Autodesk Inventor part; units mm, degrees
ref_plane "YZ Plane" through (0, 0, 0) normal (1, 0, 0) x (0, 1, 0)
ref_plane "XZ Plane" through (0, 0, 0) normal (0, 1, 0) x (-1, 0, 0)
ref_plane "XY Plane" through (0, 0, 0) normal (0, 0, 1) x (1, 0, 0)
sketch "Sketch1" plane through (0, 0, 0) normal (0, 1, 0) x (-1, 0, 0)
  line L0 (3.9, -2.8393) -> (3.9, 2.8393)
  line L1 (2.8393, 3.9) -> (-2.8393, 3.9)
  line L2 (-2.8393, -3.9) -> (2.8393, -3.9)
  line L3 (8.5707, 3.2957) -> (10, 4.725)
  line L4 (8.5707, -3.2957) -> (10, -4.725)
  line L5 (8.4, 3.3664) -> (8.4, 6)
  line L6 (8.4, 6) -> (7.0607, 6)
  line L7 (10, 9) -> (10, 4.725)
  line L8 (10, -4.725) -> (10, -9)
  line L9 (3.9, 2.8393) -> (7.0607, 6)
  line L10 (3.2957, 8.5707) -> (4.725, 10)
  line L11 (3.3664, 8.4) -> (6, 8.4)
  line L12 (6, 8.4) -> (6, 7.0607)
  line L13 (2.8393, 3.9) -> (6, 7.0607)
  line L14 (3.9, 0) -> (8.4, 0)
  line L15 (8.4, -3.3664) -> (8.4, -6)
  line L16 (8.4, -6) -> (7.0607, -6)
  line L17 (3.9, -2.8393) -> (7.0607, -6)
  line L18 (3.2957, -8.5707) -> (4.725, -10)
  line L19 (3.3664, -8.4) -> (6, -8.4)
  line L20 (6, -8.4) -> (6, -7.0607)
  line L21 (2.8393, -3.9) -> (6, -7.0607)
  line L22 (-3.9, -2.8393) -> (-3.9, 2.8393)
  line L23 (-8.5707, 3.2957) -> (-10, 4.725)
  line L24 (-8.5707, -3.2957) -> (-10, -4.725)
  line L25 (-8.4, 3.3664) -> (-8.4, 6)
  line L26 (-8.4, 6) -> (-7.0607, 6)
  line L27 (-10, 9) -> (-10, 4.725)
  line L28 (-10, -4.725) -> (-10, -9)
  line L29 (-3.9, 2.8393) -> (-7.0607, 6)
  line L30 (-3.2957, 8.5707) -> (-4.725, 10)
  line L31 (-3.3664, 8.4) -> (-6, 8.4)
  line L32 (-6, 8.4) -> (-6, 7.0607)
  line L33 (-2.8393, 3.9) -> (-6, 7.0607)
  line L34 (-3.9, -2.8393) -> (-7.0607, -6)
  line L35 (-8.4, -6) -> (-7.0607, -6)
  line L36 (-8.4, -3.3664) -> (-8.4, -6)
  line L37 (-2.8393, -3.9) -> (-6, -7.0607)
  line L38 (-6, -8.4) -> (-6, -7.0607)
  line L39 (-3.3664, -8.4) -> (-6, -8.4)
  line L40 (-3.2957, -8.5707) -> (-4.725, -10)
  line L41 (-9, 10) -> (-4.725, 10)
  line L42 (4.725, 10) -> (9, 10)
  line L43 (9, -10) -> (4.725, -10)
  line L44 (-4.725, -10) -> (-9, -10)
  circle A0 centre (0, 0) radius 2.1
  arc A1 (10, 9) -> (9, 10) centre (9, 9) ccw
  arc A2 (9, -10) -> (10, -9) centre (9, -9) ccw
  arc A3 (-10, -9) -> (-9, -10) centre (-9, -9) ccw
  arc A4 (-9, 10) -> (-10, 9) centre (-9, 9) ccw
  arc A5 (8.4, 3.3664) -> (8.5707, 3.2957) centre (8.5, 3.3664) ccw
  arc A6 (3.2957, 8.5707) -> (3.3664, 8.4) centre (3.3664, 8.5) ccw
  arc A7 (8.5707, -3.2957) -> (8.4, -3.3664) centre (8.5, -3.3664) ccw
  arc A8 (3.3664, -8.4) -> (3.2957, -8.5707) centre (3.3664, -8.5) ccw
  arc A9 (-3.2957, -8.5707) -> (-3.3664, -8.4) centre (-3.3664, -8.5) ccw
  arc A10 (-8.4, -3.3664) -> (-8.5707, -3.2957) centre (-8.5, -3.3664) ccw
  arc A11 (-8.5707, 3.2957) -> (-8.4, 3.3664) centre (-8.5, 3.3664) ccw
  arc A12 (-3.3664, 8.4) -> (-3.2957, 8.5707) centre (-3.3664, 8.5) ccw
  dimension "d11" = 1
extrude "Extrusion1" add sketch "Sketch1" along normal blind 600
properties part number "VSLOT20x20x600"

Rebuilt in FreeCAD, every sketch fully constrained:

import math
import FreeCAD as App
import Part
import Sketcher

doc = App.newDocument("Part")
body = doc.addObject("PartDesign::Body", "Body")

sketch1 = body.newObject("Sketcher::SketchObject", "Sketch")
sketch1.AttachmentSupport = (doc.getObject("XZ_Plane"), [""])
sketch1.MapMode = "FlatFace"
sketch1.addGeometry(Part.LineSegment(App.Vector(-7.06, -6, 0), App.Vector(-3.9, -2.84, 0)), False)
sketch1.addGeometry(Part.LineSegment(App.Vector(-3.9, -2.84, 0), App.Vector(-3.9, 2.84, 0)), False)
sketch1.addGeometry(Part.LineSegment(App.Vector(-3.9, 2.84, 0), App.Vector(-7.06, 6, 0)), False)
sketch1.addGeometry(Part.LineSegment(App.Vector(-7.06, 6, 0), App.Vector(-8.4, 6, 0)), False)
sketch1.addGeometry(Part.LineSegment(App.Vector(-8.4, 6, 0), App.Vector(-8.4, 3.37, 0)), False)
sketch1.addGeometry(Part.ArcOfCircle(Part.Circle(App.Vector(-8.5, 3.37, 0), App.Vector(0, 0, 1), 0.1), math.radians(-135), math.radians(0)), False)
sketch1.addGeometry(Part.LineSegment(App.Vector(-8.57, 3.3, 0), App.Vector(-10, 4.72, 0)), False)
sketch1.addGeometry(Part.LineSegment(App.Vector(-10, 4.72, 0), App.Vector(-10, 9, 0)), False)
sketch1.addGeometry(Part.ArcOfCircle(Part.Circle(App.Vector(-9, 9, 0), App.Vector(0, 0, 1), 1), math.radians(90), math.radians(180)), False)
sketch1.addGeometry(Part.LineSegment(App.Vector(-9, 10, 0), App.Vector(-4.72, 10, 0)), False)
sketch1.addGeometry(Part.LineSegment(App.Vector(-4.72, 10, 0), App.Vector(-3.3, 8.57, 0)), False)
sketch1.addGeometry(Part.ArcOfCircle(Part.Circle(App.Vector(-3.37, 8.5, 0), App.Vector(0, 0, 1), 0.1), math.radians(-90), math.radians(45)), False)
sketch1.addGeometry(Part.LineSegment(App.Vector(-3.37, 8.4, 0), App.Vector(-6, 8.4, 0)), False)
sketch1.addGeometry(Part.LineSegment(App.Vector(-6, 8.4, 0), App.Vector(-6, 7.06, 0)), False)
sketch1.addGeometry(Part.LineSegment(App.Vector(-6, 7.06, 0), App.Vector(-2.84, 3.9, 0)), False)
sketch1.addGeometry(Part.LineSegment(App.Vector(-2.84, 3.9, 0), App.Vector(2.84, 3.9, 0)), False)
sketch1.addGeometry(Part.LineSegment(App.Vector(2.84, 3.9, 0), App.Vector(6, 7.06, 0)), False)
sketch1.addGeometry(Part.LineSegment(App.Vector(6, 7.06, 0), App.Vector(6, 8.4, 0)), False)
sketch1.addGeometry(Part.LineSegment(App.Vector(6, 8.4, 0), App.Vector(3.37, 8.4, 0)), False)
sketch1.addGeometry(Part.ArcOfCircle(Part.Circle(App.Vector(3.37, 8.5, 0), App.Vector(0, 0, 1), 0.1), math.radians(135), math.radians(270)), False)
sketch1.addGeometry(Part.LineSegment(App.Vector(3.3, 8.57, 0), App.Vector(4.72, 10, 0)), False)
sketch1.addGeometry(Part.LineSegment(App.Vector(4.72, 10, 0), App.Vector(9, 10, 0)), False)
sketch1.addGeometry(Part.ArcOfCircle(Part.Circle(App.Vector(9, 9, 0), App.Vector(0, 0, 1), 1), math.radians(0), math.radians(90)), False)
sketch1.addGeometry(Part.LineSegment(App.Vector(10, 9, 0), App.Vector(10, 4.72, 0)), False)
sketch1.addGeometry(Part.LineSegment(App.Vector(10, 4.72, 0), App.Vector(8.57, 3.3, 0)), False)
sketch1.addGeometry(Part.ArcOfCircle(Part.Circle(App.Vector(8.5, 3.37, 0), App.Vector(0, 0, 1), 0.1), math.radians(180), math.radians(315)), False)
sketch1.addGeometry(Part.LineSegment(App.Vector(8.4, 3.37, 0), App.Vector(8.4, 6, 0)), False)
sketch1.addGeometry(Part.LineSegment(App.Vector(8.4, 6, 0), App.Vector(7.06, 6, 0)), False)
sketch1.addGeometry(Part.LineSegment(App.Vector(7.06, 6, 0), App.Vector(3.9, 2.84, 0)), False)
sketch1.addGeometry(Part.LineSegment(App.Vector(3.9, 2.84, 0), App.Vector(3.9, -2.84, 0)), False)
sketch1.addGeometry(Part.LineSegment(App.Vector(3.9, -2.84, 0), App.Vector(7.06, -6, 0)), False)
sketch1.addGeometry(Part.LineSegment(App.Vector(7.06, -6, 0), App.Vector(8.4, -6, 0)), False)
sketch1.addGeometry(Part.LineSegment(App.Vector(8.4, -6, 0), App.Vector(8.4, -3.37, 0)), False)
sketch1.addGeometry(Part.ArcOfCircle(Part.Circle(App.Vector(8.5, -3.37, 0), App.Vector(0, 0, 1), 0.1), math.radians(45), math.radians(180)), False)
sketch1.addGeometry(Part.LineSegment(App.Vector(8.57, -3.3, 0), App.Vector(10, -4.72, 0)), False)
sketch1.addGeometry(Part.LineSegment(App.Vector(10, -4.72, 0), App.Vector(10, -9, 0)), False)
sketch1.addGeometry(Part.ArcOfCircle(Part.Circle(App.Vector(9, -9, 0), App.Vector(0, 0, 1), 1), math.radians(-90), math.radians(0)), False)
sketch1.addGeometry(Part.LineSegment(App.Vector(9, -10, 0), App.Vector(4.72, -10, 0)), False)
sketch1.addGeometry(Part.LineSegment(App.Vector(4.72, -10, 0), App.Vector(3.3, -8.57, 0)), False)
sketch1.addGeometry(Part.ArcOfCircle(Part.Circle(App.Vector(3.37, -8.5, 0), App.Vector(0, 0, 1), 0.1), math.radians(90), math.radians(225)), False)
sketch1.addGeometry(Part.LineSegment(App.Vector(3.37, -8.4, 0), App.Vector(6, -8.4, 0)), False)
sketch1.addGeometry(Part.LineSegment(App.Vector(6, -8.4, 0), App.Vector(6, -7.06, 0)), False)
sketch1.addGeometry(Part.LineSegment(App.Vector(6, -7.06, 0), App.Vector(2.84, -3.9, 0)), False)
sketch1.addGeometry(Part.LineSegment(App.Vector(2.84, -3.9, 0), App.Vector(-2.84, -3.9, 0)), False)
sketch1.addGeometry(Part.LineSegment(App.Vector(-2.84, -3.9, 0), App.Vector(-6, -7.06, 0)), False)
sketch1.addGeometry(Part.LineSegment(App.Vector(-6, -7.06, 0), App.Vector(-6, -8.4, 0)), False)
sketch1.addGeometry(Part.LineSegment(App.Vector(-6, -8.4, 0), App.Vector(-3.37, -8.4, 0)), False)
sketch1.addGeometry(Part.ArcOfCircle(Part.Circle(App.Vector(-3.37, -8.5, 0), App.Vector(0, 0, 1), 0.1), math.radians(-45), math.radians(90)), False)
sketch1.addGeometry(Part.LineSegment(App.Vector(-3.3, -8.57, 0), App.Vector(-4.72, -10, 0)), False)
sketch1.addGeometry(Part.LineSegment(App.Vector(-4.72, -10, 0), App.Vector(-9, -10, 0)), False)
sketch1.addGeometry(Part.ArcOfCircle(Part.Circle(App.Vector(-9, -9, 0), App.Vector(0, 0, 1), 1), math.radians(180), math.radians(270)), False)
sketch1.addGeometry(Part.LineSegment(App.Vector(-10, -9, 0), App.Vector(-10, -4.72, 0)), False)
sketch1.addGeometry(Part.LineSegment(App.Vector(-10, -4.72, 0), App.Vector(-8.57, -3.3, 0)), False)
sketch1.addGeometry(Part.ArcOfCircle(Part.Circle(App.Vector(-8.5, -3.37, 0), App.Vector(0, 0, 1), 0.1), math.radians(0), math.radians(135)), False)
sketch1.addGeometry(Part.LineSegment(App.Vector(-8.4, -3.37, 0), App.Vector(-8.4, -6, 0)), False)
sketch1.addGeometry(Part.LineSegment(App.Vector(-8.4, -6, 0), App.Vector(-7.06, -6, 0)), False)
sketch1.addGeometry(Part.Circle(App.Vector(0, 0, 0), App.Vector(0, 0, 1), 2.1), False)
sketch1.addConstraint(Sketcher.Constraint("Coincident", 0, 2, 1, 1))
sketch1.addConstraint(Sketcher.Constraint("Coincident", 1, 2, 2, 1))
sketch1.addConstraint(Sketcher.Constraint("Coincident", 2, 2, 3, 1))
sketch1.addConstraint(Sketcher.Constraint("Coincident", 3, 2, 4, 1))
sketch1.addConstraint(Sketcher.Constraint("Tangent", 4, 2, 5, 2))
sketch1.addConstraint(Sketcher.Constraint("Tangent", 5, 1, 6, 1))
sketch1.addConstraint(Sketcher.Constraint("Coincident", 6, 2, 7, 1))
sketch1.addConstraint(Sketcher.Constraint("Tangent", 7, 2, 8, 2))
sketch1.addConstraint(Sketcher.Constraint("Tangent", 8, 1, 9, 1))
sketch1.addConstraint(Sketcher.Constraint("Coincident", 9, 2, 10, 1))
sketch1.addConstraint(Sketcher.Constraint("Tangent", 10, 2, 11, 2))
sketch1.addConstraint(Sketcher.Constraint("Tangent", 11, 1, 12, 1))
sketch1.addConstraint(Sketcher.Constraint("Coincident", 12, 2, 13, 1))
sketch1.addConstraint(Sketcher.Constraint("Coincident", 13, 2, 14, 1))
sketch1.addConstraint(Sketcher.Constraint("Coincident", 14, 2, 15, 1))
sketch1.addConstraint(Sketcher.Constraint("Coincident", 15, 2, 16, 1))
sketch1.addConstraint(Sketcher.Constraint("Coincident", 16, 2, 17, 1))
sketch1.addConstraint(Sketcher.Constraint("Coincident", 17, 2, 18, 1))
sketch1.addConstraint(Sketcher.Constraint("Tangent", 18, 2, 19, 2))
sketch1.addConstraint(Sketcher.Constraint("Tangent", 19, 1, 20, 1))
sketch1.addConstraint(Sketcher.Constraint("Coincident", 20, 2, 21, 1))
sketch1.addConstraint(Sketcher.Constraint("Tangent", 21, 2, 22, 2))
sketch1.addConstraint(Sketcher.Constraint("Tangent", 22, 1, 23, 1))
sketch1.addConstraint(Sketcher.Constraint("Coincident", 23, 2, 24, 1))
sketch1.addConstraint(Sketcher.Constraint("Tangent", 24, 2, 25, 2))
sketch1.addConstraint(Sketcher.Constraint("Tangent", 25, 1, 26, 1))
sketch1.addConstraint(Sketcher.Constraint("Coincident", 26, 2, 27, 1))
sketch1.addConstraint(Sketcher.Constraint("Coincident", 27, 2, 28, 1))
sketch1.addConstraint(Sketcher.Constraint("Coincident", 28, 2, 29, 1))
sketch1.addConstraint(Sketcher.Constraint("Coincident", 29, 2, 30, 1))
sketch1.addConstraint(Sketcher.Constraint("Coincident", 30, 2, 31, 1))
sketch1.addConstraint(Sketcher.Constraint("Coincident", 31, 2, 32, 1))
sketch1.addConstraint(Sketcher.Constraint("Tangent", 32, 2, 33, 2))
sketch1.addConstraint(Sketcher.Constraint("Tangent", 33, 1, 34, 1))
sketch1.addConstraint(Sketcher.Constraint("Coincident", 34, 2, 35, 1))
sketch1.addConstraint(Sketcher.Constraint("Tangent", 35, 2, 36, 2))
sketch1.addConstraint(Sketcher.Constraint("Tangent", 36, 1, 37, 1))
sketch1.addConstraint(Sketcher.Constraint("Coincident", 37, 2, 38, 1))
sketch1.addConstraint(Sketcher.Constraint("Tangent", 38, 2, 39, 2))
sketch1.addConstraint(Sketcher.Constraint("Tangent", 39, 1, 40, 1))
sketch1.addConstraint(Sketcher.Constraint("Coincident", 40, 2, 41, 1))
sketch1.addConstraint(Sketcher.Constraint("Coincident", 41, 2, 42, 1))
sketch1.addConstraint(Sketcher.Constraint("Coincident", 42, 2, 43, 1))
sketch1.addConstraint(Sketcher.Constraint("Coincident", 43, 2, 44, 1))
sketch1.addConstraint(Sketcher.Constraint("Coincident", 44, 2, 45, 1))
sketch1.addConstraint(Sketcher.Constraint("Coincident", 45, 2, 46, 1))
sketch1.addConstraint(Sketcher.Constraint("Tangent", 46, 2, 47, 2))
sketch1.addConstraint(Sketcher.Constraint("Tangent", 47, 1, 48, 1))
sketch1.addConstraint(Sketcher.Constraint("Coincident", 48, 2, 49, 1))
sketch1.addConstraint(Sketcher.Constraint("Tangent", 49, 2, 50, 2))
sketch1.addConstraint(Sketcher.Constraint("Tangent", 50, 1, 51, 1))
sketch1.addConstraint(Sketcher.Constraint("Coincident", 51, 2, 52, 1))
sketch1.addConstraint(Sketcher.Constraint("Tangent", 52, 2, 53, 2))
sketch1.addConstraint(Sketcher.Constraint("Tangent", 53, 1, 54, 1))
sketch1.addConstraint(Sketcher.Constraint("Coincident", 54, 2, 55, 1))
sketch1.addConstraint(Sketcher.Constraint("Coincident", 55, 2, 0, 1))
sketch1.addConstraint(Sketcher.Constraint("Vertical", 1))
sketch1.addConstraint(Sketcher.Constraint("Horizontal", 3))
sketch1.addConstraint(Sketcher.Constraint("Vertical", 4))
sketch1.addConstraint(Sketcher.Constraint("Vertical", 7))
sketch1.addConstraint(Sketcher.Constraint("Horizontal", 9))
sketch1.addConstraint(Sketcher.Constraint("Horizontal", 12))
sketch1.addConstraint(Sketcher.Constraint("Vertical", 13))
sketch1.addConstraint(Sketcher.Constraint("Horizontal", 15))
sketch1.addConstraint(Sketcher.Constraint("Vertical", 17))
sketch1.addConstraint(Sketcher.Constraint("Horizontal", 18))
sketch1.addConstraint(Sketcher.Constraint("Horizontal", 21))
sketch1.addConstraint(Sketcher.Constraint("Vertical", 23))
sketch1.addConstraint(Sketcher.Constraint("Vertical", 26))
sketch1.addConstraint(Sketcher.Constraint("Horizontal", 27))
sketch1.addConstraint(Sketcher.Constraint("Vertical", 29))
sketch1.addConstraint(Sketcher.Constraint("Horizontal", 31))
sketch1.addConstraint(Sketcher.Constraint("Vertical", 32))
sketch1.addConstraint(Sketcher.Constraint("Vertical", 35))
sketch1.addConstraint(Sketcher.Constraint("Horizontal", 37))
sketch1.addConstraint(Sketcher.Constraint("Horizontal", 40))
sketch1.addConstraint(Sketcher.Constraint("Vertical", 41))
sketch1.addConstraint(Sketcher.Constraint("Horizontal", 43))
sketch1.addConstraint(Sketcher.Constraint("Vertical", 45))
sketch1.addConstraint(Sketcher.Constraint("Horizontal", 46))
sketch1.addConstraint(Sketcher.Constraint("Horizontal", 49))
sketch1.addConstraint(Sketcher.Constraint("Vertical", 51))
sketch1.addConstraint(Sketcher.Constraint("Vertical", 54))
sketch1.addConstraint(Sketcher.Constraint("Horizontal", 55))
sketch1.addConstraint(Sketcher.Constraint("Coincident", 56, 3, -1, 1))
sketch1.addConstraint(Sketcher.Constraint("Equal", 5, 11))
sketch1.addConstraint(Sketcher.Constraint("Equal", 11, 19))
sketch1.addConstraint(Sketcher.Constraint("Equal", 8, 22))
sketch1.addConstraint(Sketcher.Constraint("Equal", 19, 25))
sketch1.addConstraint(Sketcher.Constraint("Equal", 25, 33))
sketch1.addConstraint(Sketcher.Constraint("Equal", 22, 36))
sketch1.addConstraint(Sketcher.Constraint("Equal", 33, 39))
sketch1.addConstraint(Sketcher.Constraint("Equal", 39, 47))
sketch1.addConstraint(Sketcher.Constraint("Equal", 36, 50))
sketch1.addConstraint(Sketcher.Constraint("Equal", 47, 53))
sketch1.addConstraint(Sketcher.Constraint("Symmetric", 5, 3, 33, 3, -1, 1))
sketch1.addConstraint(Sketcher.Constraint("Symmetric", 8, 3, 36, 3, -1, 1))
sketch1.addConstraint(Sketcher.Constraint("Symmetric", 11, 3, 39, 3, -1, 1))
sketch1.addConstraint(Sketcher.Constraint("Symmetric", 19, 3, 47, 3, -1, 1))
sketch1.addConstraint(Sketcher.Constraint("Symmetric", 22, 3, 50, 3, -1, 1))
sketch1.addConstraint(Sketcher.Constraint("Symmetric", 25, 3, 53, 3, -1, 1))
sketch1.addConstraint(Sketcher.Constraint("Symmetric", 0, 2, 28, 2, -1, 1))
sketch1.addConstraint(Sketcher.Constraint("Symmetric", 2, 2, 30, 2, -1, 1))
sketch1.addConstraint(Sketcher.Constraint("Symmetric", 13, 2, 41, 2, -1, 1))
sketch1.addConstraint(Sketcher.Constraint("Symmetric", 14, 2, 42, 2, -1, 1))
sketch1.addConstraint(Sketcher.Constraint("Symmetric", 16, 2, 44, 2, -1, 1))
sketch1.addConstraint(Sketcher.Constraint("Symmetric", 27, 2, 55, 2, -1, 1))
sketch1.addConstraint(Sketcher.Constraint("Symmetric", 11, 3, 19, 3, -2))
sketch1.addConstraint(Sketcher.Constraint("Symmetric", 8, 3, 22, 3, -2))
sketch1.addConstraint(Sketcher.Constraint("Symmetric", 5, 3, 25, 3, -2))
sketch1.addConstraint(Sketcher.Constraint("Symmetric", 13, 2, 16, 2, -2))
sketch1.addConstraint(Sketcher.Constraint("Symmetric", 2, 2, 27, 2, -2))
sketch1.addConstraint(Sketcher.Constraint("Perpendicular", 0, 2))
sketch1.addConstraint(Sketcher.Constraint("Parallel", 2, 6))
sketch1.addConstraint(Sketcher.Constraint("Parallel", 6, 10))
sketch1.addConstraint(Sketcher.Constraint("Parallel", 10, 14))
sketch1.addConstraint(Sketcher.Constraint("Perpendicular", 14, 16))
sketch1.addConstraint(Sketcher.Constraint("Parallel", 16, 20))
sketch1.addConstraint(Sketcher.Constraint("Parallel", 20, 24))
sketch1.addConstraint(Sketcher.Constraint("Perpendicular", 28, 30))
sketch1.addConstraint(Sketcher.Constraint("Parallel", 30, 34))
sketch1.addConstraint(Sketcher.Constraint("Parallel", 34, 38))
sketch1.addConstraint(Sketcher.Constraint("Perpendicular", 42, 44))
sketch1.addConstraint(Sketcher.Constraint("Parallel", 44, 48))
sketch1.addConstraint(Sketcher.Constraint("Parallel", 48, 52))
sketch1.addConstraint(Sketcher.Constraint("Horizontal", 10, 2, 19, 1))
sketch1.addConstraint(Sketcher.Constraint("Equal", 43, 1))
sketch1.addConstraint(Sketcher.Constraint("Equal", 46, 4))
sketch1.addConstraint(Sketcher.Constraint("Equal", 49, 7))
sketch1.addConstraint(Sketcher.Constraint("Equal", 55, 13))
sketch1.addConstraint(Sketcher.Constraint("Equal", 6, 10))
sketch1.addConstraint(Sketcher.Constraint("Equal", 2, 14))
sketch1.addConstraint(Sketcher.Constraint("Radius", 8, 1.0))
sketch1.addConstraint(Sketcher.Constraint("Diameter", 56, 4.2))
sketch1.addConstraint(Sketcher.Constraint("Radius", 5, 0.1))
sketch1.addConstraint(Sketcher.Constraint("DistanceX", 8, 3, -1, 1, 9.0))
sketch1.addConstraint(Sketcher.Constraint("DistanceY", -1, 1, 2, 2, 6.0))
sketch1.addConstraint(Sketcher.Constraint("DistanceX", 5, 3, -1, 1, 8.5))
sketch1.addConstraint(Sketcher.Constraint("DistanceX", 0, 2, -1, 1, 3.9))
sketch1.addConstraint(Sketcher.Constraint("Distance", 0, 4.47))
sketch1.addConstraint(Sketcher.Constraint("DistanceX", 9, 1, 9, 2, 4.275))
pad1 = body.newObject("PartDesign::Pad", "Pad")
pad1.Profile = sketch1
pad1.Length = 600
pad1.Reversed = True

doc.recompute()
